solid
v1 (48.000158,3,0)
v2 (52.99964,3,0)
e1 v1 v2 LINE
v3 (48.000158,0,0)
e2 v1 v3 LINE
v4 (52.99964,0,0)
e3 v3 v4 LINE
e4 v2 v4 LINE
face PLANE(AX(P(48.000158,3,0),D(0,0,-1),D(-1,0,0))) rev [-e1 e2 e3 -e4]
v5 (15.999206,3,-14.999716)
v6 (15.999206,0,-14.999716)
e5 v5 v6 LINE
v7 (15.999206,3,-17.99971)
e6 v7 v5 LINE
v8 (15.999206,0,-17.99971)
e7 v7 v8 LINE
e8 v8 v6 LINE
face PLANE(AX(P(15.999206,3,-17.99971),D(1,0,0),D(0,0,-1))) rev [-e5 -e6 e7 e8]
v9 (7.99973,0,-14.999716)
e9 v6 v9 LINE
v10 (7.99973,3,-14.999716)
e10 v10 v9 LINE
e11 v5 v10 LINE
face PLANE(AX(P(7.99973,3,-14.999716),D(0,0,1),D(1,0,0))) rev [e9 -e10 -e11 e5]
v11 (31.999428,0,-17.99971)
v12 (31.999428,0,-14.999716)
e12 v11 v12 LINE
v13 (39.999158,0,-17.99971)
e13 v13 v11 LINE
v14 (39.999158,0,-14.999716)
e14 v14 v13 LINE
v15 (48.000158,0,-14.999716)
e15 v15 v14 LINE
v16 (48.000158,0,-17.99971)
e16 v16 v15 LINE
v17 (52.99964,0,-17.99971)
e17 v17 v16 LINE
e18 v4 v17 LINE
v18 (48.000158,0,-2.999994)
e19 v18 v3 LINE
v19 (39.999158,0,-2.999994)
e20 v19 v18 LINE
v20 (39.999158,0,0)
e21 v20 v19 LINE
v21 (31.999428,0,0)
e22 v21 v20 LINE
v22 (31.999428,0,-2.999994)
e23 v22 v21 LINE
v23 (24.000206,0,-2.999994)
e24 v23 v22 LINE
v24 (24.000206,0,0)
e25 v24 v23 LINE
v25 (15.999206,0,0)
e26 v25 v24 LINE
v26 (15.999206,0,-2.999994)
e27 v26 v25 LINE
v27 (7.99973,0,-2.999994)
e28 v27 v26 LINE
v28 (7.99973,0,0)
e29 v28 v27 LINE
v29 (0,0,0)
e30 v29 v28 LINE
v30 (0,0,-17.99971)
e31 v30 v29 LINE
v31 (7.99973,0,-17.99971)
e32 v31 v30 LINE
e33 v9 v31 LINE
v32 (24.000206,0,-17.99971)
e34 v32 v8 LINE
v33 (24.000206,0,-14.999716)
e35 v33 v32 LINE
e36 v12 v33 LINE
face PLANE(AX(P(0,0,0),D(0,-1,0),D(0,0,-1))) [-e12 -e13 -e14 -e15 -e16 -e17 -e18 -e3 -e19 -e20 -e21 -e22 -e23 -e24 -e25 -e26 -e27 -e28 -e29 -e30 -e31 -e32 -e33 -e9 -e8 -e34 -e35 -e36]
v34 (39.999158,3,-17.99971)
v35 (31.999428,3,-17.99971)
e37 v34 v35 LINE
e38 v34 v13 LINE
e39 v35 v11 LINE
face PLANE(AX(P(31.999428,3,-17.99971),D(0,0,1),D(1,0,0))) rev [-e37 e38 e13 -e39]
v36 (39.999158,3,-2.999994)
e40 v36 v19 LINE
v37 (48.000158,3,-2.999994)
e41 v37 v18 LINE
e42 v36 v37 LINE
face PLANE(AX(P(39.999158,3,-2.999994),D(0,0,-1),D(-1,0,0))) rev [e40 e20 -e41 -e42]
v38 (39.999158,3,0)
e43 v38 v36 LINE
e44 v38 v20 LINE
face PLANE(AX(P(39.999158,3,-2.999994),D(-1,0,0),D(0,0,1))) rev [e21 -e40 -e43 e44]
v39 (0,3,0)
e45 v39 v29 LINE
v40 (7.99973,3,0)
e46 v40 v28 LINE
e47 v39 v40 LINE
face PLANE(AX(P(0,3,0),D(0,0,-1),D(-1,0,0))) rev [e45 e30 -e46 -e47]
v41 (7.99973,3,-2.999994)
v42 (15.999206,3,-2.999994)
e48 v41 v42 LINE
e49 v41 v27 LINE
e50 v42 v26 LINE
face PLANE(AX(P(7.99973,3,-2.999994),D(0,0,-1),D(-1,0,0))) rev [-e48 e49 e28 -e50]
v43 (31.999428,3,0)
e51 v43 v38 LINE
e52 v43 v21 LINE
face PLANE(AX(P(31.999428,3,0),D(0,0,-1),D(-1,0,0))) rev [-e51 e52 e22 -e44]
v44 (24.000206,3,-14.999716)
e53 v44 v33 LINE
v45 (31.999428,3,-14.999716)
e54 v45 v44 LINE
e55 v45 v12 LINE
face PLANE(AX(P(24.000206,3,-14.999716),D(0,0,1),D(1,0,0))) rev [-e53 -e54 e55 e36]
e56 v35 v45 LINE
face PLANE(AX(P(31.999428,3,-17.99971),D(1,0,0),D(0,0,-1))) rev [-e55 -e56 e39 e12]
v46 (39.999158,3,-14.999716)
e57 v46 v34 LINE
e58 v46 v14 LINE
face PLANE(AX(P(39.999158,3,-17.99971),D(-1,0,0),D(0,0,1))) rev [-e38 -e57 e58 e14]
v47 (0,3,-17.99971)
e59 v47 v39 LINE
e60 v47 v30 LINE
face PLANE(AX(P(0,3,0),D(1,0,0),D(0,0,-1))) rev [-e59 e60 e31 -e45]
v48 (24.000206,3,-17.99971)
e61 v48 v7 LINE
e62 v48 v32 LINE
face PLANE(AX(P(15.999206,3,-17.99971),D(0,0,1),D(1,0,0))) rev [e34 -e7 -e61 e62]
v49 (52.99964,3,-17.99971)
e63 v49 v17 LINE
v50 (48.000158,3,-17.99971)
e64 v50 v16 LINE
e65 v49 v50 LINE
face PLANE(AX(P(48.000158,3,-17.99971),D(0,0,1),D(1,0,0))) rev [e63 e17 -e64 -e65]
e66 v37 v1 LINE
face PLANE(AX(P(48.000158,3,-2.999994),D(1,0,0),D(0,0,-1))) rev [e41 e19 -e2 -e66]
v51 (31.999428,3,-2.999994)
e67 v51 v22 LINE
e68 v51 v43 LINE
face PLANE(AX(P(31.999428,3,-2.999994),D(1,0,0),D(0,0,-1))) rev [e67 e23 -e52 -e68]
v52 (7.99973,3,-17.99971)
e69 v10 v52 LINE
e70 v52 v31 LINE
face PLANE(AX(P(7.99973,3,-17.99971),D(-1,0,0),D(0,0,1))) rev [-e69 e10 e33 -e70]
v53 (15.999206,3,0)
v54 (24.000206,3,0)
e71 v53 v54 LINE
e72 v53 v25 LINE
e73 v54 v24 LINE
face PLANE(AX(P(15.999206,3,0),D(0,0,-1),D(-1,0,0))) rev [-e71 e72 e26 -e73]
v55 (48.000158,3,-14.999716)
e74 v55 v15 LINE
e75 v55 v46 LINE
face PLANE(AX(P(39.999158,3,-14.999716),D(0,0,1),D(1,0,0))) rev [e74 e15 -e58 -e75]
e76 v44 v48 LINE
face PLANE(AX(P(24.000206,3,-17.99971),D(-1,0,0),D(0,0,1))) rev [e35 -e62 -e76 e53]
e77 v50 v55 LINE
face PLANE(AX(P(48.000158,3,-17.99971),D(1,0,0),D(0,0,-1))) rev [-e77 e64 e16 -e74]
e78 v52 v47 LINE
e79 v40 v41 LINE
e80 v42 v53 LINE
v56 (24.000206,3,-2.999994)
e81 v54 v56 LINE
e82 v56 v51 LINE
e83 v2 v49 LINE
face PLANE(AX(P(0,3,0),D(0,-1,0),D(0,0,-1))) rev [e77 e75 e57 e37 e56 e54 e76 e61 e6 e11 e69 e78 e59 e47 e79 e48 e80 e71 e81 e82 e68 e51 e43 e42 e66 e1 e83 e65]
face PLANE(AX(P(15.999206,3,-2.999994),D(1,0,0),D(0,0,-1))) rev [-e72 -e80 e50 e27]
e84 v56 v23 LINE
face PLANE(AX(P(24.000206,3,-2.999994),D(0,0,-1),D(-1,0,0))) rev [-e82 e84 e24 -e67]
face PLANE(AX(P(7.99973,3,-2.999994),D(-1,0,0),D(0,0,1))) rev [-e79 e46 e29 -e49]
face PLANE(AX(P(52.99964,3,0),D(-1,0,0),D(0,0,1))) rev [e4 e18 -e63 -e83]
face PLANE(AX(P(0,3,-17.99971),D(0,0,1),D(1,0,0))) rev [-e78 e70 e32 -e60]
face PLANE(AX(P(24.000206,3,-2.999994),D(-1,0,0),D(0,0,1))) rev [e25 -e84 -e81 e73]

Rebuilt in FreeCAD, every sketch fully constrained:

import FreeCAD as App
import Part
import Sketcher

V = App.Vector
Q = App.Units.Quantity


def add_polygon(sketch, points):
    """Adds a closed chain of lines whose ends are joined by coincident constraints."""
    first, n = sketch.GeometryCount, len(points)
    for a, b in zip(points, points[1:] + points[:1]):
        sketch.addGeometry(Part.LineSegment(App.Vector(*a, 0), App.Vector(*b, 0)), False)
    for i in range(n):
        sketch.addConstraint(Sketcher.Constraint("Coincident", first + i, 2, first + (i + 1) % n, 1))

doc = App.newDocument("Part")
body = doc.addObject("PartDesign::Body", "Body")

# Sketch on XZ plane
sketch1 = body.newObject("Sketcher::SketchObject", "Sketch")
sketch1.AttachmentSupport = (doc.getObject("XZ_Plane"), [""])
sketch1.MapMode = "FlatFace"
add_polygon(sketch1, [(0, 0), (7.99973, 0), (7.99973, -2.999994), (15.999206, -2.999994), (15.999206, 0), (24.000206, 0), (24.000206, -2.999994), (31.999428, -2.999994), (31.999428, 0), (39.999158, 0), (39.999158, -2.999994), (48.000158, -2.999994), (48.000158, 0), (52.99964, 0), (52.99964, -17.99971), (48.000158, -17.99971), (48.000158, -14.999716), (39.999158, -14.999716), (39.999158, -17.99971), (31.999428, -17.99971), (31.999428, -14.999716), (24.000206, -14.999716), (24.000206, -17.99971), (15.999206, -17.99971), (15.999206, -14.999716), (7.99973, -14.999716), (7.99973, -17.99971), (0, -17.99971)])  # lines 0-27
sketch1.addConstraint(Sketcher.Constraint("Horizontal", 0))
sketch1.addConstraint(Sketcher.Constraint("Vertical", 1))
sketch1.addConstraint(Sketcher.Constraint("Horizontal", 2))
sketch1.addConstraint(Sketcher.Constraint("Vertical", 3))
sketch1.addConstraint(Sketcher.Constraint("Horizontal", 4))
sketch1.addConstraint(Sketcher.Constraint("Vertical", 5))
sketch1.addConstraint(Sketcher.Constraint("Horizontal", 6))
sketch1.addConstraint(Sketcher.Constraint("Vertical", 7))
sketch1.addConstraint(Sketcher.Constraint("Horizontal", 8))
sketch1.addConstraint(Sketcher.Constraint("Vertical", 9))
sketch1.addConstraint(Sketcher.Constraint("Horizontal", 10))
sketch1.addConstraint(Sketcher.Constraint("Vertical", 11))
sketch1.addConstraint(Sketcher.Constraint("Horizontal", 12))
sketch1.addConstraint(Sketcher.Constraint("Vertical", 13))
sketch1.addConstraint(Sketcher.Constraint("Horizontal", 14))
sketch1.addConstraint(Sketcher.Constraint("Vertical", 15))
sketch1.addConstraint(Sketcher.Constraint("Horizontal", 16))
sketch1.addConstraint(Sketcher.Constraint("Vertical", 17))
sketch1.addConstraint(Sketcher.Constraint("Horizontal", 18))
sketch1.addConstraint(Sketcher.Constraint("Vertical", 19))
sketch1.addConstraint(Sketcher.Constraint("Horizontal", 20))
sketch1.addConstraint(Sketcher.Constraint("Vertical", 21))
sketch1.addConstraint(Sketcher.Constraint("Horizontal", 22))
sketch1.addConstraint(Sketcher.Constraint("Vertical", 23))
sketch1.addConstraint(Sketcher.Constraint("Horizontal", 24))
sketch1.addConstraint(Sketcher.Constraint("Vertical", 25))
sketch1.addConstraint(Sketcher.Constraint("Horizontal", 26))
sketch1.addConstraint(Sketcher.Constraint("Vertical", 27))
sketch1.addConstraint(Sketcher.Constraint("Coincident", 27, 2, -1, 1))
sketch1.addConstraint(Sketcher.Constraint("PointOnObject", 3, 2, -1))
sketch1.addConstraint(Sketcher.Constraint("PointOnObject", 7, 2, -1))
sketch1.addConstraint(Sketcher.Constraint("PointOnObject", 11, 2, -1))
sketch1.addConstraint(Sketcher.Constraint("Horizontal", 2, 2, 5, 2))
sketch1.addConstraint(Sketcher.Constraint("Horizontal", 6, 2, 9, 2))
sketch1.addConstraint(Sketcher.Constraint("Horizontal", 14, 2, 17, 2))
sketch1.addConstraint(Sketcher.Constraint("Horizontal", 16, 2, 19, 2))
sketch1.addConstraint(Sketcher.Constraint("Horizontal", 18, 2, 21, 2))
sketch1.addConstraint(Sketcher.Constraint("Horizontal", 20, 2, 23, 2))
sketch1.addConstraint(Sketcher.Constraint("Horizontal", 22, 2, 25, 2))
sketch1.addConstraint(Sketcher.Constraint("Vertical", 11, 2, 14, 2))
sketch1.addConstraint(Sketcher.Constraint("Vertical", 9, 2, 16, 2))
sketch1.addConstraint(Sketcher.Constraint("Vertical", 7, 2, 18, 2))
sketch1.addConstraint(Sketcher.Constraint("Vertical", 5, 2, 20, 2))
sketch1.addConstraint(Sketcher.Constraint("Vertical", 3, 2, 22, 2))
sketch1.addConstraint(Sketcher.Constraint("Vertical", 1, 2, 24, 2))
sketch1.addConstraint(Sketcher.Constraint("Equal", 0, 8))
sketch1.addConstraint(Sketcher.Constraint("Equal", 4, 10))
sketch1.addConstraint(Sketcher.Constraint("Equal", 11, 15))
sketch1.addConstraint(Sketcher.Constraint("DistanceX", 4, 1, 4, 2, Q("8.001 mm")))
sketch1.addConstraint(Sketcher.Constraint("DistanceX", 0, 1, 0, 2, Q("7.99973 mm")))
sketch1.addConstraint(Sketcher.Constraint("DistanceY", 13, 2, 13, 1, Q("17.99971 mm")))
sketch1.addConstraint(Sketcher.Constraint("DistanceX", 1, 2, 6, 2, Q("23.999698 mm")))
sketch1.addConstraint(Sketcher.Constraint("DistanceX", 2, 1, 2, 2, Q("7.999476 mm")))
sketch1.addConstraint(Sketcher.Constraint("DistanceX", 12, 1, 12, 2, Q("4.999482 mm")))
sketch1.addConstraint(Sketcher.Constraint("DistanceY", 1, 2, 1, 1, Q("2.999994 mm")))
pad1 = body.newObject("PartDesign::Pad", "Pad")
pad1.Profile = sketch1
pad1.Length = 3
pad1.Reversed = True

doc.recompute()
